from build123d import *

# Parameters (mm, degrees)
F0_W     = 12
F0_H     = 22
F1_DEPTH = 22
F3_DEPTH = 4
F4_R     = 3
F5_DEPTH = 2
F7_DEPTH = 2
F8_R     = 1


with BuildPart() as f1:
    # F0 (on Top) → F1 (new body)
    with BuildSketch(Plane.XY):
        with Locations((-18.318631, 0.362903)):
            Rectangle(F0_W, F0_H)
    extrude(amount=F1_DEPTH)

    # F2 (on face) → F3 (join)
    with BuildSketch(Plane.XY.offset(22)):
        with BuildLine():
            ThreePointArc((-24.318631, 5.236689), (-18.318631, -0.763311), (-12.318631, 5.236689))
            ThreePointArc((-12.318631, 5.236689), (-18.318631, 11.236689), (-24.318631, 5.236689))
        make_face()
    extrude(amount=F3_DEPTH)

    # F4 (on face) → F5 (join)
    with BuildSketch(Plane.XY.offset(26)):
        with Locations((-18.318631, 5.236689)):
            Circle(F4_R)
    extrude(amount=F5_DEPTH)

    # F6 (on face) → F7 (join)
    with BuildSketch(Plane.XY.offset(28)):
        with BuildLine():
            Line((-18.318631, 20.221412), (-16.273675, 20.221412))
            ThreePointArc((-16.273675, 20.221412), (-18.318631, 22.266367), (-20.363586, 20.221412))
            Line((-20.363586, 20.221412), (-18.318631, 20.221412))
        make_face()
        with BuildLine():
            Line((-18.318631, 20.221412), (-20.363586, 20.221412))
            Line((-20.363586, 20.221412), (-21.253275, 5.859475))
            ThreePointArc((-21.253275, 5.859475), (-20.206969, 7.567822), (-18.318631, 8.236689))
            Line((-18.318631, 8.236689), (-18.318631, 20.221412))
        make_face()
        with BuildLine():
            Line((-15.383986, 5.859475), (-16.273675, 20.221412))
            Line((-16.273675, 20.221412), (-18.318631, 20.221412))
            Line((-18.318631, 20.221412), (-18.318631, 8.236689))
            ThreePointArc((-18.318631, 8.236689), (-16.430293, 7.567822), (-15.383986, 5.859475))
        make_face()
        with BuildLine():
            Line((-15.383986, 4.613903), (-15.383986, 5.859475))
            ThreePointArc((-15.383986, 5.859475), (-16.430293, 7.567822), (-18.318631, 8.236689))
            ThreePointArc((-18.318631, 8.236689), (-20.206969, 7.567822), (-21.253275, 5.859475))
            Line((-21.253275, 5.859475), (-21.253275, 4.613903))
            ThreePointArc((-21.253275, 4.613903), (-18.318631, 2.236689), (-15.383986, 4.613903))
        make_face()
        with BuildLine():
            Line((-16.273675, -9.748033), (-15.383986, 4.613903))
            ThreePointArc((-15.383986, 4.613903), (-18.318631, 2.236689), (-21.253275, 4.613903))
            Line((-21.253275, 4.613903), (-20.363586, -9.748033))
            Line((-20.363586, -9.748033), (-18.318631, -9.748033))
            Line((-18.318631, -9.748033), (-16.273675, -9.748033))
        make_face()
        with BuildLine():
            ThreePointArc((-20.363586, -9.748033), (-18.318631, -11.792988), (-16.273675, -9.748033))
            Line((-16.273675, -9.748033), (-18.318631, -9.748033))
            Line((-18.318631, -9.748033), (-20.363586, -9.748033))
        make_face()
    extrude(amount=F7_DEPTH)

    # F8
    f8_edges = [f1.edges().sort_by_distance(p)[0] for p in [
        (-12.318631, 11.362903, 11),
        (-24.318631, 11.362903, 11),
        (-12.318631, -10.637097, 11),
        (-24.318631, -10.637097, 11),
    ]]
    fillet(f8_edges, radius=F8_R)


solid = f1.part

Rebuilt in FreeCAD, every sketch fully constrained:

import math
import FreeCAD as App
import Part
import Sketcher
from FreeCAD import Vector


def edges_at(feature, points):
    """Names of the edges that pass closest to the given points."""
    edges = feature.Shape.Edges
    near = lambda p: min(range(len(edges)), key=lambda i: edges[i].distToShape(Part.Vertex(*p))[0])
    return sorted({f"Edge{near(p) + 1}" for p in points})

doc = App.newDocument("Part")
body = doc.addObject("PartDesign::Body", "Body")

# Sketch on XY plane
sketch1 = body.newObject("Sketcher::SketchObject", "Sketch")
sketch1.AttachmentSupport = (doc.getObject("XY_Plane"), [""])
sketch1.MapMode = "FlatFace"
sketch1.addGeometry(Part.LineSegment(Vector(-24, 11, 0), Vector(-24, -11, 0)), False)
sketch1.addGeometry(Part.LineSegment(Vector(-24, -11, 0), Vector(-12, -11, 0)), False)
sketch1.addGeometry(Part.LineSegment(Vector(-12, -11, 0), Vector(-12, 11, 0)), False)
sketch1.addGeometry(Part.LineSegment(Vector(-12, 11, 0), Vector(-24, 11, 0)), False)
sketch1.addConstraint(Sketcher.Constraint("Coincident", 0, 2, 1, 1))
sketch1.addConstraint(Sketcher.Constraint("Coincident", 1, 2, 2, 1))
sketch1.addConstraint(Sketcher.Constraint("Coincident", 2, 2, 3, 1))
sketch1.addConstraint(Sketcher.Constraint("Coincident", 3, 2, 0, 1))
sketch1.addConstraint(Sketcher.Constraint("Vertical", 0))
sketch1.addConstraint(Sketcher.Constraint("Horizontal", 1))
sketch1.addConstraint(Sketcher.Constraint("Vertical", 2))
sketch1.addConstraint(Sketcher.Constraint("Horizontal", 3))
sketch1.addConstraint(Sketcher.Constraint("DistanceX", 1, 1, 1, 2, 12.0))
sketch1.addConstraint(Sketcher.Constraint("DistanceY", 0, 2, 0, 1, 22.0))
sketch1.addConstraint(Sketcher.Constraint("DistanceX", 0, 2, -1, 1, 24.318631))
sketch1.addConstraint(Sketcher.Constraint("DistanceY", 0, 2, -1, 1, 10.637097))
pad1 = body.newObject("PartDesign::Pad", "Pad")
pad1.Profile = sketch1
pad1.Length = 22

# Sketch on XY plane
sketch2 = body.newObject("Sketcher::SketchObject", "Sketch001")
sketch2.AttachmentSupport = (doc.getObject("XY_Plane"), [""])
sketch2.MapMode = "FlatFace"
sketch2.AttachmentOffset = App.Placement(Vector(0, 0, 22), App.Rotation())
sketch2.addGeometry(Part.Circle(Vector(-18, 5, 0), Vector(0, 0, 1), 6), False)
sketch2.addConstraint(Sketcher.Constraint("Diameter", 0, 12.0))
sketch2.addConstraint(Sketcher.Constraint("DistanceX", 0, 3, -1, 1, 18.318631))
sketch2.addConstraint(Sketcher.Constraint("DistanceY", -1, 1, 0, 3, 5.236689))
pad2 = body.newObject("PartDesign::Pad", "Pad001")
pad2.Profile = sketch2
pad2.Length = 4

# Sketch on XY plane
sketch3 = body.newObject("Sketcher::SketchObject", "Sketch002")
sketch3.AttachmentSupport = (doc.getObject("XY_Plane"), [""])
sketch3.MapMode = "FlatFace"
sketch3.AttachmentOffset = App.Placement(Vector(0, 0, 26), App.Rotation())
sketch3.addGeometry(Part.Circle(Vector(-18.3, 5.2, 0), Vector(0, 0, 1), 3), False)
sketch3.addConstraint(Sketcher.Constraint("Diameter", 0, 6.0))
sketch3.addConstraint(Sketcher.Constraint("DistanceX", 0, 3, -1, 1, 18.318631))
sketch3.addConstraint(Sketcher.Constraint("DistanceY", -1, 1, 0, 3, 5.236689))
pad3 = body.newObject("PartDesign::Pad", "Pad002")
pad3.Profile = sketch3
pad3.Length = 2

# Sketch on XY plane
sketch4 = body.newObject("Sketcher::SketchObject", "Sketch003")
sketch4.AttachmentSupport = (doc.getObject("XY_Plane"), [""])
sketch4.MapMode = "FlatFace"
sketch4.AttachmentOffset = App.Placement(Vector(0, 0, 28), App.Rotation())
sketch4.addGeometry(Part.ArcOfCircle(Part.Circle(Vector(-18.3, 20.2, 0), Vector(0, 0, 1), 2), math.radians(0), math.radians(180)), False)
sketch4.addGeometry(Part.LineSegment(Vector(-20.4, 20.2, 0), Vector(-21.3, 5.9, 0)), False)
sketch4.addGeometry(Part.LineSegment(Vector(-21.3, 5.9, 0), Vector(-21.3, 4.6, 0)), False)
sketch4.addGeometry(Part.LineSegment(Vector(-21.3, 4.6, 0), Vector(-20.4, -9.7, 0)), False)
sketch4.addGeometry(Part.ArcOfCircle(Part.Circle(Vector(-18.3, -9.7, 0), Vector(0, 0, 1), 2), math.radians(-180), math.radians(0)), False)
sketch4.addGeometry(Part.LineSegment(Vector(-16.3, -9.7, 0), Vector(-15.4, 4.6, 0)), False)
sketch4.addGeometry(Part.LineSegment(Vector(-15.4, 4.6, 0), Vector(-15.4, 5.9, 0)), False)
sketch4.addGeometry(Part.LineSegment(Vector(-15.4, 5.9, 0), Vector(-16.3, 20.2, 0)), False)
sketch4.addConstraint(Sketcher.Constraint("Coincident", 0, 2, 1, 1))
sketch4.addConstraint(Sketcher.Constraint("Coincident", 1, 2, 2, 1))
sketch4.addConstraint(Sketcher.Constraint("Coincident", 2, 2, 3, 1))
sketch4.addConstraint(Sketcher.Constraint("Coincident", 3, 2, 4, 1))
sketch4.addConstraint(Sketcher.Constraint("Coincident", 4, 2, 5, 1))
sketch4.addConstraint(Sketcher.Constraint("Coincident", 5, 2, 6, 1))
sketch4.addConstraint(Sketcher.Constraint("Coincident", 6, 2, 7, 1))
sketch4.addConstraint(Sketcher.Constraint("Coincident", 7, 2, 0, 1))
sketch4.addConstraint(Sketcher.Constraint("Vertical", 2))
sketch4.addConstraint(Sketcher.Constraint("Vertical", 6))
sketch4.addConstraint(Sketcher.Constraint("Equal", 0, 4))
sketch4.addConstraint(Sketcher.Constraint("Parallel", 1, 5))
sketch4.addConstraint(Sketcher.Constraint("Parallel", 3, 7))
sketch4.addConstraint(Sketcher.Constraint("Horizontal", 4, 3, 3, 2))
sketch4.addConstraint(Sketcher.Constraint("Horizontal", 3, 2, 4, 2))
sketch4.addConstraint(Sketcher.Constraint("Horizontal", 2, 2, 5, 2))
sketch4.addConstraint(Sketcher.Constraint("Horizontal", 1, 2, 6, 2))
sketch4.addConstraint(Sketcher.Constraint("Horizontal", 0, 2, 7, 2))
sketch4.addConstraint(Sketcher.Constraint("Vertical", 0, 3, 4, 3))
sketch4.addConstraint(Sketcher.Constraint("Radius", 0, 2.044955))
sketch4.addConstraint(Sketcher.Constraint("DistanceX", 2, 2, 4, 2, 4.9796))
sketch4.addConstraint(Sketcher.Constraint("DistanceY", 2, 2, 2, 1, 1.245572))
sketch4.addConstraint(Sketcher.Constraint("DistanceX", 0, 3, -1, 1, 18.318631))
sketch4.addConstraint(Sketcher.Constraint("DistanceY", -1, 1, 0, 3, 20.221411))
sketch4.addConstraint(Sketcher.Constraint("DistanceY", 2, 2, 0, 2, 15.607509))
sketch4.addConstraint(Sketcher.Constraint("DistanceY", 2, 2, 0, 3, 15.607508))
pad4 = body.newObject("PartDesign::Pad", "Pad003")
pad4.Profile = sketch4
pad4.Length = 2
doc.recompute()

fillet = body.newObject("PartDesign::Fillet", "Fillet")
fillet.Base = (pad4, edges_at(pad4, [
    (-12.319, 11.363, 11),
    (-24.319, 11.363, 11),
    (-12.319, -10.637, 11),
    (-24.319, -10.637, 11),
]))
fillet.Radius = 1

doc.recompute()
